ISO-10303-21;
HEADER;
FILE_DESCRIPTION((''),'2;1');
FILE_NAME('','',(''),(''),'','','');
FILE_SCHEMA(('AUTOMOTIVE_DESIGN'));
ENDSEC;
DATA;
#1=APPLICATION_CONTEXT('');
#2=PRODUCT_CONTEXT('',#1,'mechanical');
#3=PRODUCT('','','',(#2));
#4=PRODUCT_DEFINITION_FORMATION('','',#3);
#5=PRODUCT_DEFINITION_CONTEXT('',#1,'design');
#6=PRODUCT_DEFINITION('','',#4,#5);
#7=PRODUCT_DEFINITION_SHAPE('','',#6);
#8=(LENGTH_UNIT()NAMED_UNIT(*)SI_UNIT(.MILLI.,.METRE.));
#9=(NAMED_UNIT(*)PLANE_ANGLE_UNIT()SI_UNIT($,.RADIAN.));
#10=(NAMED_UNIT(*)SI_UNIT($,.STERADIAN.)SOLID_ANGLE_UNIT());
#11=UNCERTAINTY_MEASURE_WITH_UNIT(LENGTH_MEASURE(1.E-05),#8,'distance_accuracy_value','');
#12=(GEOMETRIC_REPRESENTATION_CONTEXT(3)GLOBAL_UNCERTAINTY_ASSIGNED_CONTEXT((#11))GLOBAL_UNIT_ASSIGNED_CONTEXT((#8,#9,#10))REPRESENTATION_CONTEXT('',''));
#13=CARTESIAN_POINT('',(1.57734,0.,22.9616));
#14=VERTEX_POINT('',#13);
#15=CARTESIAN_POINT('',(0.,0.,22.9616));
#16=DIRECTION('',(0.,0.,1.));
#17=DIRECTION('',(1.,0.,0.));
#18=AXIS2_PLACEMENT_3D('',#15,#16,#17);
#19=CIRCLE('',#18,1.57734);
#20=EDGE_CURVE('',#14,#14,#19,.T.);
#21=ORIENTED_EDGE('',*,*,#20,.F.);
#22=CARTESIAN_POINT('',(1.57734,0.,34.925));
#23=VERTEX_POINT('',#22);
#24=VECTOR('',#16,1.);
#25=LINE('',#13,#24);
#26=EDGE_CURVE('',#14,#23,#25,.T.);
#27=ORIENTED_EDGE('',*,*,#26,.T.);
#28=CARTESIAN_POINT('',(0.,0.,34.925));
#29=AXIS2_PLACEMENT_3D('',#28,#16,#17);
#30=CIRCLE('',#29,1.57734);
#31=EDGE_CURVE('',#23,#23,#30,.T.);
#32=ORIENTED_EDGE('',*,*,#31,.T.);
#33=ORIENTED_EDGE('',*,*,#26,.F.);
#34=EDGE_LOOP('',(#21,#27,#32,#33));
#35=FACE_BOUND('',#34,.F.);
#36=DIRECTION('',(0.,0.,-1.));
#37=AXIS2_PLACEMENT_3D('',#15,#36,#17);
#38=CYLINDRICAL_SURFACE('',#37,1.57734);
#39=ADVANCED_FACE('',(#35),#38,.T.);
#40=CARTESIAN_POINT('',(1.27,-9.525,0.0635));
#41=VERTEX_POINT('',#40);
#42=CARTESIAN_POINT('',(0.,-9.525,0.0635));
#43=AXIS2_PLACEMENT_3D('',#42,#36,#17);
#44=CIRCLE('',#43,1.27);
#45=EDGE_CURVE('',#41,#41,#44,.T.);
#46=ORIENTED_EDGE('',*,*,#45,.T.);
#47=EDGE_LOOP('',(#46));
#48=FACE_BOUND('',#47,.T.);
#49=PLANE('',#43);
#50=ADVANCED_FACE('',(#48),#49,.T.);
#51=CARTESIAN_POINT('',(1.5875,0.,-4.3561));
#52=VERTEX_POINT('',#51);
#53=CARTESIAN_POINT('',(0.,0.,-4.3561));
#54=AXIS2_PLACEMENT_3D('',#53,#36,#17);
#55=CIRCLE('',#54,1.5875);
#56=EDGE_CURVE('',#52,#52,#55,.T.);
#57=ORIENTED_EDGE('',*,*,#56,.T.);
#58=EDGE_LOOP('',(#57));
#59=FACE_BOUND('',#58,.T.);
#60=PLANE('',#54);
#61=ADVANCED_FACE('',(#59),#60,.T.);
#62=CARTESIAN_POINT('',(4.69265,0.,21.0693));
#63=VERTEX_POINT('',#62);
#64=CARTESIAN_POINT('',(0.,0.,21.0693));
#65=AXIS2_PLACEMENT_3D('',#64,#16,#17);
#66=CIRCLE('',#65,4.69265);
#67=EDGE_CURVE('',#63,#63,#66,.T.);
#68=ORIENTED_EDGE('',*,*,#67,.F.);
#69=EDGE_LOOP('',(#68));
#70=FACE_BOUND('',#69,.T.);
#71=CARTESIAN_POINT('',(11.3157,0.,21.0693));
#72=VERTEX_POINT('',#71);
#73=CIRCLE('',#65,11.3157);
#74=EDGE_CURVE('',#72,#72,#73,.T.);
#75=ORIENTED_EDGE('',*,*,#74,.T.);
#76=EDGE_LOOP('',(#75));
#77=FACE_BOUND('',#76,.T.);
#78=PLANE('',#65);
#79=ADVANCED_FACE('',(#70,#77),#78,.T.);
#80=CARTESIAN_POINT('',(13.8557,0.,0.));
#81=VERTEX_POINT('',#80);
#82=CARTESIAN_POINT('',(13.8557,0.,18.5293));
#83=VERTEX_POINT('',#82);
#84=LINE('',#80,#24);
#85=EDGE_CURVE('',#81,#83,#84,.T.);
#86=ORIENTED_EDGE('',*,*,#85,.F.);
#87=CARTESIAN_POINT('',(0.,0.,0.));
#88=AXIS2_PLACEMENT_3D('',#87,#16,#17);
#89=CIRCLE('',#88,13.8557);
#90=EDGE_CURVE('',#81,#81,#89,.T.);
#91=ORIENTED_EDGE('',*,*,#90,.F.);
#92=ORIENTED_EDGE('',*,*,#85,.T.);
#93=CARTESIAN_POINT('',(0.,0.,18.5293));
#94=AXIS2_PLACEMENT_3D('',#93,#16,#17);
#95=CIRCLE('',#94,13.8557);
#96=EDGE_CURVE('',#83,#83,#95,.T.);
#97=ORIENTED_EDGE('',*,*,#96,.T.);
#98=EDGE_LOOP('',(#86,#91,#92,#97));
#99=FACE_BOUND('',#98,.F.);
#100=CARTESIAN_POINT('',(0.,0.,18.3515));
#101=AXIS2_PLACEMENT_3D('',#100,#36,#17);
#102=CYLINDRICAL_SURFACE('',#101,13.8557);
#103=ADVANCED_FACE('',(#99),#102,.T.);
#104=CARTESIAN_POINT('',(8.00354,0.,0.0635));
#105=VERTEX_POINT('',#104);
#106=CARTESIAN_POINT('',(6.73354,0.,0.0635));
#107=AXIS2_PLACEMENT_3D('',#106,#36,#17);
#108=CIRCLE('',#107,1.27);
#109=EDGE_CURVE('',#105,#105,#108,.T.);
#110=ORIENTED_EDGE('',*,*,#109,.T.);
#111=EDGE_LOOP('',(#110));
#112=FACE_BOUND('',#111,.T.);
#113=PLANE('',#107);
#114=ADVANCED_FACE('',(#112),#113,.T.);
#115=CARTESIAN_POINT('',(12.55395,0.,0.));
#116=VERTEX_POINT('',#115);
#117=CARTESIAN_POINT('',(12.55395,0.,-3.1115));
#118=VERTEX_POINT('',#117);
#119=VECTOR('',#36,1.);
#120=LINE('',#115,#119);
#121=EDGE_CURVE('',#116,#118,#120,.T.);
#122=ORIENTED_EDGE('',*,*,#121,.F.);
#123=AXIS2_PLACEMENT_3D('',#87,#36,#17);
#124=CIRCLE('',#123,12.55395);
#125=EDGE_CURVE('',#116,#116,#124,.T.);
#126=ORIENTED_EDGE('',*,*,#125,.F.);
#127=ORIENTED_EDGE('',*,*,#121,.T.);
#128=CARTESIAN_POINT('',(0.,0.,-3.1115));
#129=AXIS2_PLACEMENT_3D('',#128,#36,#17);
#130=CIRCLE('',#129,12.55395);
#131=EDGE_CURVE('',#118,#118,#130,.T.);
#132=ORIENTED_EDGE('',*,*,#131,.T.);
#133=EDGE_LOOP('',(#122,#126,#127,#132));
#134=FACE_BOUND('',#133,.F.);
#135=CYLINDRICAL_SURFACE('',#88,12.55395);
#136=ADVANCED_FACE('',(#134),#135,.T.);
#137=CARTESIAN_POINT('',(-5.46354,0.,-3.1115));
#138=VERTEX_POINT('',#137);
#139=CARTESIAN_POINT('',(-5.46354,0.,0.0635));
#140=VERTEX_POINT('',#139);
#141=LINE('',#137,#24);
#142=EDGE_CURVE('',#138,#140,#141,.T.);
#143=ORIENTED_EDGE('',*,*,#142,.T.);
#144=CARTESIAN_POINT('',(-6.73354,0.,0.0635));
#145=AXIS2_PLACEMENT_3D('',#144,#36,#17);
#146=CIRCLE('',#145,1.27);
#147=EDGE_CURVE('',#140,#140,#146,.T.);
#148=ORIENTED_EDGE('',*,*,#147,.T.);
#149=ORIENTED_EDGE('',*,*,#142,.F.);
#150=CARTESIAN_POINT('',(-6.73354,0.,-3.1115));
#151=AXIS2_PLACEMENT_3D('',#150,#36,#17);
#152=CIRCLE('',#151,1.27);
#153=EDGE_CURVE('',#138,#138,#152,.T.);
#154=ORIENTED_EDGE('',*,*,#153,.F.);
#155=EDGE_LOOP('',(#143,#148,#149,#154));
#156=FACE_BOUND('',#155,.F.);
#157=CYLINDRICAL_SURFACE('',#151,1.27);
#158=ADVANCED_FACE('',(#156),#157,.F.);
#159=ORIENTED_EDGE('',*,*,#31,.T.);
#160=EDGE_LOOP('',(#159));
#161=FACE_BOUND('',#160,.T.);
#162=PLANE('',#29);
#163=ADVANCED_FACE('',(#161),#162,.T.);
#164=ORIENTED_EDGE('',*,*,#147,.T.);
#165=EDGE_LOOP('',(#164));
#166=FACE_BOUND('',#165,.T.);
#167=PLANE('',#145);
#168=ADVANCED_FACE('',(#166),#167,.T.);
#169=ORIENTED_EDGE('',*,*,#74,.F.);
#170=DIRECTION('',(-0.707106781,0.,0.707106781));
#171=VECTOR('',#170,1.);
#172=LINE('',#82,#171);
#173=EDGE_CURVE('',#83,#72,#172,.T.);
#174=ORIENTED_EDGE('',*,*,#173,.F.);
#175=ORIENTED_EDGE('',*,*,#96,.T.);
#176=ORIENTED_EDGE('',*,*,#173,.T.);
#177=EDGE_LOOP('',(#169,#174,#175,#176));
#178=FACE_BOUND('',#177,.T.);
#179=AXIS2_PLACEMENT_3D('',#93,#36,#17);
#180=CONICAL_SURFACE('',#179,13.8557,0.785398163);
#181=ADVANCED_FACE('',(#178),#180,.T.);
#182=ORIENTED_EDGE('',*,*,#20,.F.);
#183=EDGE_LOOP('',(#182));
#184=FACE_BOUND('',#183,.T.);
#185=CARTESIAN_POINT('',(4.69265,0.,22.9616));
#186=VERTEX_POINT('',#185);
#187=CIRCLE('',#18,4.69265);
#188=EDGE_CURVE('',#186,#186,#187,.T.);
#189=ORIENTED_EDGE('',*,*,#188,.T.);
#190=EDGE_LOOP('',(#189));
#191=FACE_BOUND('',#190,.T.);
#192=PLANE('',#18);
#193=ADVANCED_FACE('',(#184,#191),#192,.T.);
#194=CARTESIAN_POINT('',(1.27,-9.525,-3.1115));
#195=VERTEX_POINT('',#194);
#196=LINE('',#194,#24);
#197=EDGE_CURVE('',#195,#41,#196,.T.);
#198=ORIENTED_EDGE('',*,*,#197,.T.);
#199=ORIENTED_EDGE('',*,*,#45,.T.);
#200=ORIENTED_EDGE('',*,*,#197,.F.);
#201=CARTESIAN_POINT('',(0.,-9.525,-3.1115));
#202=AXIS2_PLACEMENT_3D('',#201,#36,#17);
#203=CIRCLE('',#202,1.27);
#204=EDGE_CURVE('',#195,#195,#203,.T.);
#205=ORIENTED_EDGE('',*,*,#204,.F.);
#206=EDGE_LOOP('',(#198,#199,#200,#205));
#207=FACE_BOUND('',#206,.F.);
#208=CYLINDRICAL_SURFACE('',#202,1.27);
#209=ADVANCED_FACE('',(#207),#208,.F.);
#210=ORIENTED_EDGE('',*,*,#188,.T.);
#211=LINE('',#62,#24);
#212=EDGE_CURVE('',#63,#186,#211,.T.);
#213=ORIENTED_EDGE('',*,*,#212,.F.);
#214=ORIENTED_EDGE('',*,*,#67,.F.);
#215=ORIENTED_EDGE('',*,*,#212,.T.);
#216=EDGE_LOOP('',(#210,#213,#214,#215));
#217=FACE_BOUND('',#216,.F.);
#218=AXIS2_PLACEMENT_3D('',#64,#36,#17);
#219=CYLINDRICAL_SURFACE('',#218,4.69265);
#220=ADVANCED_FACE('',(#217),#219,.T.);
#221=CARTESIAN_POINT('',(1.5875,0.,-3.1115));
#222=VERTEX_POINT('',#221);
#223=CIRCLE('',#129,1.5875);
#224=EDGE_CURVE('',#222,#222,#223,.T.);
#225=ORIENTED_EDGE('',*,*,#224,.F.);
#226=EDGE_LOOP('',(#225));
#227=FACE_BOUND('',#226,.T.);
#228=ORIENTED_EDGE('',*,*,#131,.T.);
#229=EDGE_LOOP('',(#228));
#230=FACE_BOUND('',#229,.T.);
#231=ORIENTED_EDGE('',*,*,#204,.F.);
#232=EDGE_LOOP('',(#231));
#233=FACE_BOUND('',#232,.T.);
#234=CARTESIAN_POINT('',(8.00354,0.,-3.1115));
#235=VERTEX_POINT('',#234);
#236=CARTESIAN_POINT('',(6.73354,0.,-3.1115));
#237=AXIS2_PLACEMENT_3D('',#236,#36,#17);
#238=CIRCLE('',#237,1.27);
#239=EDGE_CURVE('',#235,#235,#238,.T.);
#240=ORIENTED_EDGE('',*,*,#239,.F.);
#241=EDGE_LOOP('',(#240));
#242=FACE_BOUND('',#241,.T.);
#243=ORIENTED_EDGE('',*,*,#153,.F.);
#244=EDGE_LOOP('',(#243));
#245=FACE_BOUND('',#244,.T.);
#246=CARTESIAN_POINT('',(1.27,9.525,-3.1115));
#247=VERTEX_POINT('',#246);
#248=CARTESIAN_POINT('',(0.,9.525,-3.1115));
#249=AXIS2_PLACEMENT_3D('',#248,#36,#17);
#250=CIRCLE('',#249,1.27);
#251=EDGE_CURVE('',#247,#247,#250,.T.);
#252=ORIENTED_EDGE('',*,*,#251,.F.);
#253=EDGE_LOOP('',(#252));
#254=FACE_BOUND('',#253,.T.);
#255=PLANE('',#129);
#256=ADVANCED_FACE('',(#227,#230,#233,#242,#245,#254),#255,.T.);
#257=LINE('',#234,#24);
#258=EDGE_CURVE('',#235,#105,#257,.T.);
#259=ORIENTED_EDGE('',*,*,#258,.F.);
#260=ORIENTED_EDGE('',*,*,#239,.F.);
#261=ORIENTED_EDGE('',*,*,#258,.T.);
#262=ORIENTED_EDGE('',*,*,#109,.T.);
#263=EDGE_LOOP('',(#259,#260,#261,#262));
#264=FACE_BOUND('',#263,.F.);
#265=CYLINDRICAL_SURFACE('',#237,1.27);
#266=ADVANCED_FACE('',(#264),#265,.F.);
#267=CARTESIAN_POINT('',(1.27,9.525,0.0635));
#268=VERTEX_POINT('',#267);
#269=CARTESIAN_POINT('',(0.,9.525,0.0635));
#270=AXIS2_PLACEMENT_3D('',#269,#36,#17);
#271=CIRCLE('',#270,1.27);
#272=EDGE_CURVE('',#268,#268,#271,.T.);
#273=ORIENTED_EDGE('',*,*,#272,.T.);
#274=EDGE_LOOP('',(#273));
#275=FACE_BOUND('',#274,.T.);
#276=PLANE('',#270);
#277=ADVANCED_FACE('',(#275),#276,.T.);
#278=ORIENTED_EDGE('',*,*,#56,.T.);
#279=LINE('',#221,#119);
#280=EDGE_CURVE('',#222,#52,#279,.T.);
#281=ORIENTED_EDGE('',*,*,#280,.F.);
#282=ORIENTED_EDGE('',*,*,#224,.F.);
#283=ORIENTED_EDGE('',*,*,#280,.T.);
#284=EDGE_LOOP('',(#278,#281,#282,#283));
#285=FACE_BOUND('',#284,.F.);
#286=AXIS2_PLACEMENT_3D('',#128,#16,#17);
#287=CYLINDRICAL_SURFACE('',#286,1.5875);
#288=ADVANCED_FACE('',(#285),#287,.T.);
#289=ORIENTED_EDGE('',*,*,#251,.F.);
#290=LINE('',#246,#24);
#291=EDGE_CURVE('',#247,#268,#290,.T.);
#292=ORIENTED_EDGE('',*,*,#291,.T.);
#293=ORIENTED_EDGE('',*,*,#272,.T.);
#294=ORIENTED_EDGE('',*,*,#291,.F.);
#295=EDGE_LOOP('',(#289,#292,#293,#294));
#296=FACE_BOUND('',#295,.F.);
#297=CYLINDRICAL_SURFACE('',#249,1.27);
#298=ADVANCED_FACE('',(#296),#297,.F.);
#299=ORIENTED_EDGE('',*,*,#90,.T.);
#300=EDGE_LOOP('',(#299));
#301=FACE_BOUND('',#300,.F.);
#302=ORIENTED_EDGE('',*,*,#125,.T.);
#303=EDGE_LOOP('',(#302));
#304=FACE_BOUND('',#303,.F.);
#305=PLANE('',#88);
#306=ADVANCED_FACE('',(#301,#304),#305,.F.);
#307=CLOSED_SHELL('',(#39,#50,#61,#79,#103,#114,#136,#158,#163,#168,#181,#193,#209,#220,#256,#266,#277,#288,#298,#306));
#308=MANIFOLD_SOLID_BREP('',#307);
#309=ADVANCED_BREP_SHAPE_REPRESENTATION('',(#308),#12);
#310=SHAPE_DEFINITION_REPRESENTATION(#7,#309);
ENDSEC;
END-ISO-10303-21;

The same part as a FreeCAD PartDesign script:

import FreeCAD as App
import Part
import Sketcher
from FreeCAD import Vector
Q = App.Units.Quantity


def edges_at(feature, points):
    """Names of the edges that pass closest to the given points."""
    edges = feature.Shape.Edges
    near = lambda p: min(range(len(edges)), key=lambda i: edges[i].distToShape(Part.Vertex(*p))[0])
    return sorted({f"Edge{near(p) + 1}" for p in points})

doc = App.newDocument("Part")
params = doc.addObject("Spreadsheet::Sheet", "Params")
for row, (alias, value) in enumerate([
    ("sketch1_diameter", "1.091 in"),
    ("pad1_length", "0.7225 in"),
    ("pad2_length", "0.1225 in"),
    ("sketch3_diameter", "1.091 in"),
    ("pad3_length", "0.107 in"),
    ("chamfer_size", "0.1 in"),
    ("pad4_length", "0.0745 in"),
    ("pad5_length", "0.471 in"),
    ("sketch6_diameter", "0.1 in"),
    ("pocket1_length", "0.125 in"),
    ("sketch7_diameter", "0.125 in"),
    ("pad6_length", "0.049 in"),
], start=1):
    params.set(f"A{row}", alias)
    params.set(f"B{row}", "=" + value)
    params.setAlias(f"B{row}", alias)

body = doc.addObject("PartDesign::Body", "Body")

# Sketch on XY plane
sketch1 = body.newObject("Sketcher::SketchObject", "Sketch")
sketch1.AttachmentSupport = (doc.getObject("XY_Plane"), [""])
sketch1.MapMode = "FlatFace"
sketch1.addGeometry(Part.Circle(Vector(0, 0, 0), Vector(0, 0, 1), 13.8557), False)
sketch1.addConstraint([
    Sketcher.Constraint("Coincident", 0, 3, -1, 1),
    Sketcher.Constraint("Diameter", 0, Q("1.091 in")),
])
sketch1.setExpression("Constraints[1]", "Params.sketch1_diameter")
pad1 = body.newObject("PartDesign::Pad", "Pad")
pad1.Profile = sketch1
pad1.setExpression("Length", "Params.pad1_length")

# Sketch on XY plane
sketch2 = body.newObject("Sketcher::SketchObject", "Sketch001")
sketch2.AttachmentSupport = (doc.getObject("XY_Plane"), [""])
sketch2.MapMode = "FlatFace"
sketch2.addGeometry(Part.Circle(Vector(0, 0, 0), Vector(0, 0, 1), 12.55395), False)
sketch2.addConstraint([
    Sketcher.Constraint("Coincident", 0, 3, -1, 1),
    Sketcher.Constraint("Diameter", 0, Q("0.9885 in")),
])
pad2 = body.newObject("PartDesign::Pad", "Pad001")
pad2.Profile = sketch2
pad2.setExpression("Length", "Params.pad2_length")
pad2.Reversed = True

# Sketch on XY plane
sketch3 = body.newObject("Sketcher::SketchObject", "Sketch002")
sketch3.AttachmentSupport = (doc.getObject("XY_Plane"), [""])
sketch3.MapMode = "FlatFace"
sketch3.AttachmentOffset = App.Placement(Vector(0, 0, 0.7225 * 25.4), App.Rotation())
sketch3.addGeometry(Part.Circle(Vector(0, 0, 0), Vector(0, 0, 1), 13.8557), False)
sketch3.addConstraint([
    Sketcher.Constraint("Coincident", 0, 3, -1, 1),
    Sketcher.Constraint("Diameter", 0, Q("1.091 in")),
])
sketch3.setExpression("Constraints[1]", "Params.sketch3_diameter")
pad3 = body.newObject("PartDesign::Pad", "Pad002")
pad3.Profile = sketch3
pad3.setExpression("Length", "Params.pad3_length")
doc.recompute()

chamfer = body.newObject("PartDesign::Chamfer", "Chamfer")
chamfer.Base = (pad3, edges_at(pad3, [(-13.856, 0, 21.069)]))
chamfer.setExpression("Size", "Params.chamfer_size")

# Sketch on XY plane
sketch4 = body.newObject("Sketcher::SketchObject", "Sketch003")
sketch4.AttachmentSupport = (doc.getObject("XY_Plane"), [""])
sketch4.MapMode = "FlatFace"
sketch4.AttachmentOffset = App.Placement(Vector(0, 0, 0.8295 * 25.4), App.Rotation())
sketch4.addGeometry(Part.Circle(Vector(0, 0, 0), Vector(0, 0, 1), 4.69265), False)
sketch4.addConstraint([
    Sketcher.Constraint("Coincident", 0, 3, -1, 1),
    Sketcher.Constraint("Diameter", 0, Q("0.3695 in")),
])
pad4 = body.newObject("PartDesign::Pad", "Pad003")
pad4.Profile = sketch4
pad4.setExpression("Length", "Params.pad4_length")

# Sketch on XY plane
sketch5 = body.newObject("Sketcher::SketchObject", "Sketch004")
sketch5.AttachmentSupport = (doc.getObject("XY_Plane"), [""])
sketch5.MapMode = "FlatFace"
sketch5.AttachmentOffset = App.Placement(Vector(0, 0, 0.904 * 25.4), App.Rotation())
sketch5.addGeometry(Part.Circle(Vector(0, 0, 0), Vector(0, 0, 1), 1.57734), False)
sketch5.addConstraint([
    Sketcher.Constraint("Coincident", 0, 3, -1, 1),
    Sketcher.Constraint("Diameter", 0, Q("0.1242 in")),
])
pad5 = body.newObject("PartDesign::Pad", "Pad004")
pad5.Profile = sketch5
pad5.setExpression("Length", "Params.pad5_length")

# Sketch on XY plane
sketch6 = body.newObject("Sketcher::SketchObject", "Sketch005")
sketch6.AttachmentSupport = (doc.getObject("XY_Plane"), [""])
sketch6.MapMode = "FlatFace"
sketch6.AttachmentOffset = App.Placement(Vector(0, 0, -0.1225 * 25.4), App.Rotation())
sketch6.addGeometry([
    Part.Circle(Vector(6.73354, 0, 0), Vector(0, 0, 1), 1.27),
    Part.Circle(Vector(-6.73354, 0, 0), Vector(0, 0, 1), 1.27),
    Part.Circle(Vector(0, -9.525, 0), Vector(0, 0, 1), 1.27),
    Part.Circle(Vector(0, 9.525, 0), Vector(0, 0, 1), 1.27),
], False)
sketch6.addConstraint([
    Sketcher.Constraint("Equal", 0, 1),
    Sketcher.Constraint("Equal", 1, 2),
    Sketcher.Constraint("Equal", 2, 3),
    Sketcher.Constraint("Symmetric", 0, 3, 1, 3, -1, 1),
    Sketcher.Constraint("Symmetric", 2, 3, 3, 3, -1, 1),
    Sketcher.Constraint("PointOnObject", 0, 3, -1),
    Sketcher.Constraint("PointOnObject", 2, 3, -2),
    Sketcher.Constraint("Diameter", 0, Q("0.1 in")),
    Sketcher.Constraint("DistanceY", 2, 3, 3, 3, Q("0.75 in")),
    Sketcher.Constraint("DistanceX", -1, 1, 0, 3, Q("0.2651 in")),
])
sketch6.setExpression("Constraints[7]", "Params.sketch6_diameter")
pocket1 = body.newObject("PartDesign::Pocket", "Pocket")
pocket1.Profile = sketch6
pocket1.setExpression("Length", "Params.pocket1_length")
pocket1.Reversed = True

# Sketch on XY plane
sketch7 = body.newObject("Sketcher::SketchObject", "Sketch006")
sketch7.AttachmentSupport = (doc.getObject("XY_Plane"), [""])
sketch7.MapMode = "FlatFace"
sketch7.AttachmentOffset = App.Placement(Vector(0, 0, -0.1225 * 25.4), App.Rotation())
sketch7.addGeometry(Part.Circle(Vector(0, 0, 0), Vector(0, 0, 1), 1.5875), False)
sketch7.addConstraint([
    Sketcher.Constraint("Coincident", 0, 3, -1, 1),
    Sketcher.Constraint("Diameter", 0, Q("0.125 in")),
])
sketch7.setExpression("Constraints[1]", "Params.sketch7_diameter")
pad6 = body.newObject("PartDesign::Pad", "Pad005")
pad6.Profile = sketch7
pad6.setExpression("Length", "Params.pad6_length")
pad6.Reversed = True

doc.recompute()
